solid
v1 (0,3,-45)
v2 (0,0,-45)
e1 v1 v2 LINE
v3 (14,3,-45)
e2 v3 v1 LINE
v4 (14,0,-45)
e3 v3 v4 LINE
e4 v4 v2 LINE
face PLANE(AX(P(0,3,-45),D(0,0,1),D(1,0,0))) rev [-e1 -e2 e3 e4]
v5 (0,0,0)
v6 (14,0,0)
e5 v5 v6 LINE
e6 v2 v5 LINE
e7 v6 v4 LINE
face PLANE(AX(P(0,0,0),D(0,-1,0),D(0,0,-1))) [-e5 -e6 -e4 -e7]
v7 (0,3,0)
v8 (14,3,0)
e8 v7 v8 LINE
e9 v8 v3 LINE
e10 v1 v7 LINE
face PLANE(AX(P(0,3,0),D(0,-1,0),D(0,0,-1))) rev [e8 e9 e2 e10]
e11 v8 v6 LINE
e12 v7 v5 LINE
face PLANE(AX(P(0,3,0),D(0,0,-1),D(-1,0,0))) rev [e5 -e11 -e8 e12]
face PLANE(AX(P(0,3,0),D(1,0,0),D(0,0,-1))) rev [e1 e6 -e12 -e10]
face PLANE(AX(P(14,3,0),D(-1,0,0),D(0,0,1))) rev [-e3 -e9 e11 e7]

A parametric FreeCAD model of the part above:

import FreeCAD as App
import Part
import Sketcher
from FreeCAD import Vector


def add_polygon(sketch, points):
    """Adds a closed chain of lines whose ends are joined by coincident constraints."""
    first, n = sketch.GeometryCount, len(points)
    for a, b in zip(points, points[1:] + points[:1]):
        sketch.addGeometry(Part.LineSegment(App.Vector(*a, 0), App.Vector(*b, 0)), False)
    for i in range(n):
        sketch.addConstraint(Sketcher.Constraint("Coincident", first + i, 2, first + (i + 1) % n, 1))

doc = App.newDocument("Part")
body = doc.addObject("PartDesign::Body", "Body")

# Sketch on XZ plane
sketch1 = body.newObject("Sketcher::SketchObject", "Sketch")
sketch1.AttachmentSupport = (doc.getObject("XZ_Plane"), [""])
sketch1.MapMode = "FlatFace"
add_polygon(sketch1, [(0, -45), (0, 0), (14, 0), (14, -45)])  # lines 0-3
sketch1.addConstraint([
    Sketcher.Constraint("Vertical", 0),
    Sketcher.Constraint("Horizontal", 1),
    Sketcher.Constraint("Vertical", 2),
    Sketcher.Constraint("Horizontal", 3),
    Sketcher.Constraint("Coincident", 0, 2, -1, 1),
    Sketcher.Constraint("DistanceX", 1, 1, 1, 2, 14.0),
    Sketcher.Constraint("DistanceY", 0, 1, 0, 2, 45.0),
])
pad1 = body.newObject("PartDesign::Pad", "Pad")
pad1.Profile = sketch1
pad1.Length = 3
pad1.Reversed = True

doc.recompute()
